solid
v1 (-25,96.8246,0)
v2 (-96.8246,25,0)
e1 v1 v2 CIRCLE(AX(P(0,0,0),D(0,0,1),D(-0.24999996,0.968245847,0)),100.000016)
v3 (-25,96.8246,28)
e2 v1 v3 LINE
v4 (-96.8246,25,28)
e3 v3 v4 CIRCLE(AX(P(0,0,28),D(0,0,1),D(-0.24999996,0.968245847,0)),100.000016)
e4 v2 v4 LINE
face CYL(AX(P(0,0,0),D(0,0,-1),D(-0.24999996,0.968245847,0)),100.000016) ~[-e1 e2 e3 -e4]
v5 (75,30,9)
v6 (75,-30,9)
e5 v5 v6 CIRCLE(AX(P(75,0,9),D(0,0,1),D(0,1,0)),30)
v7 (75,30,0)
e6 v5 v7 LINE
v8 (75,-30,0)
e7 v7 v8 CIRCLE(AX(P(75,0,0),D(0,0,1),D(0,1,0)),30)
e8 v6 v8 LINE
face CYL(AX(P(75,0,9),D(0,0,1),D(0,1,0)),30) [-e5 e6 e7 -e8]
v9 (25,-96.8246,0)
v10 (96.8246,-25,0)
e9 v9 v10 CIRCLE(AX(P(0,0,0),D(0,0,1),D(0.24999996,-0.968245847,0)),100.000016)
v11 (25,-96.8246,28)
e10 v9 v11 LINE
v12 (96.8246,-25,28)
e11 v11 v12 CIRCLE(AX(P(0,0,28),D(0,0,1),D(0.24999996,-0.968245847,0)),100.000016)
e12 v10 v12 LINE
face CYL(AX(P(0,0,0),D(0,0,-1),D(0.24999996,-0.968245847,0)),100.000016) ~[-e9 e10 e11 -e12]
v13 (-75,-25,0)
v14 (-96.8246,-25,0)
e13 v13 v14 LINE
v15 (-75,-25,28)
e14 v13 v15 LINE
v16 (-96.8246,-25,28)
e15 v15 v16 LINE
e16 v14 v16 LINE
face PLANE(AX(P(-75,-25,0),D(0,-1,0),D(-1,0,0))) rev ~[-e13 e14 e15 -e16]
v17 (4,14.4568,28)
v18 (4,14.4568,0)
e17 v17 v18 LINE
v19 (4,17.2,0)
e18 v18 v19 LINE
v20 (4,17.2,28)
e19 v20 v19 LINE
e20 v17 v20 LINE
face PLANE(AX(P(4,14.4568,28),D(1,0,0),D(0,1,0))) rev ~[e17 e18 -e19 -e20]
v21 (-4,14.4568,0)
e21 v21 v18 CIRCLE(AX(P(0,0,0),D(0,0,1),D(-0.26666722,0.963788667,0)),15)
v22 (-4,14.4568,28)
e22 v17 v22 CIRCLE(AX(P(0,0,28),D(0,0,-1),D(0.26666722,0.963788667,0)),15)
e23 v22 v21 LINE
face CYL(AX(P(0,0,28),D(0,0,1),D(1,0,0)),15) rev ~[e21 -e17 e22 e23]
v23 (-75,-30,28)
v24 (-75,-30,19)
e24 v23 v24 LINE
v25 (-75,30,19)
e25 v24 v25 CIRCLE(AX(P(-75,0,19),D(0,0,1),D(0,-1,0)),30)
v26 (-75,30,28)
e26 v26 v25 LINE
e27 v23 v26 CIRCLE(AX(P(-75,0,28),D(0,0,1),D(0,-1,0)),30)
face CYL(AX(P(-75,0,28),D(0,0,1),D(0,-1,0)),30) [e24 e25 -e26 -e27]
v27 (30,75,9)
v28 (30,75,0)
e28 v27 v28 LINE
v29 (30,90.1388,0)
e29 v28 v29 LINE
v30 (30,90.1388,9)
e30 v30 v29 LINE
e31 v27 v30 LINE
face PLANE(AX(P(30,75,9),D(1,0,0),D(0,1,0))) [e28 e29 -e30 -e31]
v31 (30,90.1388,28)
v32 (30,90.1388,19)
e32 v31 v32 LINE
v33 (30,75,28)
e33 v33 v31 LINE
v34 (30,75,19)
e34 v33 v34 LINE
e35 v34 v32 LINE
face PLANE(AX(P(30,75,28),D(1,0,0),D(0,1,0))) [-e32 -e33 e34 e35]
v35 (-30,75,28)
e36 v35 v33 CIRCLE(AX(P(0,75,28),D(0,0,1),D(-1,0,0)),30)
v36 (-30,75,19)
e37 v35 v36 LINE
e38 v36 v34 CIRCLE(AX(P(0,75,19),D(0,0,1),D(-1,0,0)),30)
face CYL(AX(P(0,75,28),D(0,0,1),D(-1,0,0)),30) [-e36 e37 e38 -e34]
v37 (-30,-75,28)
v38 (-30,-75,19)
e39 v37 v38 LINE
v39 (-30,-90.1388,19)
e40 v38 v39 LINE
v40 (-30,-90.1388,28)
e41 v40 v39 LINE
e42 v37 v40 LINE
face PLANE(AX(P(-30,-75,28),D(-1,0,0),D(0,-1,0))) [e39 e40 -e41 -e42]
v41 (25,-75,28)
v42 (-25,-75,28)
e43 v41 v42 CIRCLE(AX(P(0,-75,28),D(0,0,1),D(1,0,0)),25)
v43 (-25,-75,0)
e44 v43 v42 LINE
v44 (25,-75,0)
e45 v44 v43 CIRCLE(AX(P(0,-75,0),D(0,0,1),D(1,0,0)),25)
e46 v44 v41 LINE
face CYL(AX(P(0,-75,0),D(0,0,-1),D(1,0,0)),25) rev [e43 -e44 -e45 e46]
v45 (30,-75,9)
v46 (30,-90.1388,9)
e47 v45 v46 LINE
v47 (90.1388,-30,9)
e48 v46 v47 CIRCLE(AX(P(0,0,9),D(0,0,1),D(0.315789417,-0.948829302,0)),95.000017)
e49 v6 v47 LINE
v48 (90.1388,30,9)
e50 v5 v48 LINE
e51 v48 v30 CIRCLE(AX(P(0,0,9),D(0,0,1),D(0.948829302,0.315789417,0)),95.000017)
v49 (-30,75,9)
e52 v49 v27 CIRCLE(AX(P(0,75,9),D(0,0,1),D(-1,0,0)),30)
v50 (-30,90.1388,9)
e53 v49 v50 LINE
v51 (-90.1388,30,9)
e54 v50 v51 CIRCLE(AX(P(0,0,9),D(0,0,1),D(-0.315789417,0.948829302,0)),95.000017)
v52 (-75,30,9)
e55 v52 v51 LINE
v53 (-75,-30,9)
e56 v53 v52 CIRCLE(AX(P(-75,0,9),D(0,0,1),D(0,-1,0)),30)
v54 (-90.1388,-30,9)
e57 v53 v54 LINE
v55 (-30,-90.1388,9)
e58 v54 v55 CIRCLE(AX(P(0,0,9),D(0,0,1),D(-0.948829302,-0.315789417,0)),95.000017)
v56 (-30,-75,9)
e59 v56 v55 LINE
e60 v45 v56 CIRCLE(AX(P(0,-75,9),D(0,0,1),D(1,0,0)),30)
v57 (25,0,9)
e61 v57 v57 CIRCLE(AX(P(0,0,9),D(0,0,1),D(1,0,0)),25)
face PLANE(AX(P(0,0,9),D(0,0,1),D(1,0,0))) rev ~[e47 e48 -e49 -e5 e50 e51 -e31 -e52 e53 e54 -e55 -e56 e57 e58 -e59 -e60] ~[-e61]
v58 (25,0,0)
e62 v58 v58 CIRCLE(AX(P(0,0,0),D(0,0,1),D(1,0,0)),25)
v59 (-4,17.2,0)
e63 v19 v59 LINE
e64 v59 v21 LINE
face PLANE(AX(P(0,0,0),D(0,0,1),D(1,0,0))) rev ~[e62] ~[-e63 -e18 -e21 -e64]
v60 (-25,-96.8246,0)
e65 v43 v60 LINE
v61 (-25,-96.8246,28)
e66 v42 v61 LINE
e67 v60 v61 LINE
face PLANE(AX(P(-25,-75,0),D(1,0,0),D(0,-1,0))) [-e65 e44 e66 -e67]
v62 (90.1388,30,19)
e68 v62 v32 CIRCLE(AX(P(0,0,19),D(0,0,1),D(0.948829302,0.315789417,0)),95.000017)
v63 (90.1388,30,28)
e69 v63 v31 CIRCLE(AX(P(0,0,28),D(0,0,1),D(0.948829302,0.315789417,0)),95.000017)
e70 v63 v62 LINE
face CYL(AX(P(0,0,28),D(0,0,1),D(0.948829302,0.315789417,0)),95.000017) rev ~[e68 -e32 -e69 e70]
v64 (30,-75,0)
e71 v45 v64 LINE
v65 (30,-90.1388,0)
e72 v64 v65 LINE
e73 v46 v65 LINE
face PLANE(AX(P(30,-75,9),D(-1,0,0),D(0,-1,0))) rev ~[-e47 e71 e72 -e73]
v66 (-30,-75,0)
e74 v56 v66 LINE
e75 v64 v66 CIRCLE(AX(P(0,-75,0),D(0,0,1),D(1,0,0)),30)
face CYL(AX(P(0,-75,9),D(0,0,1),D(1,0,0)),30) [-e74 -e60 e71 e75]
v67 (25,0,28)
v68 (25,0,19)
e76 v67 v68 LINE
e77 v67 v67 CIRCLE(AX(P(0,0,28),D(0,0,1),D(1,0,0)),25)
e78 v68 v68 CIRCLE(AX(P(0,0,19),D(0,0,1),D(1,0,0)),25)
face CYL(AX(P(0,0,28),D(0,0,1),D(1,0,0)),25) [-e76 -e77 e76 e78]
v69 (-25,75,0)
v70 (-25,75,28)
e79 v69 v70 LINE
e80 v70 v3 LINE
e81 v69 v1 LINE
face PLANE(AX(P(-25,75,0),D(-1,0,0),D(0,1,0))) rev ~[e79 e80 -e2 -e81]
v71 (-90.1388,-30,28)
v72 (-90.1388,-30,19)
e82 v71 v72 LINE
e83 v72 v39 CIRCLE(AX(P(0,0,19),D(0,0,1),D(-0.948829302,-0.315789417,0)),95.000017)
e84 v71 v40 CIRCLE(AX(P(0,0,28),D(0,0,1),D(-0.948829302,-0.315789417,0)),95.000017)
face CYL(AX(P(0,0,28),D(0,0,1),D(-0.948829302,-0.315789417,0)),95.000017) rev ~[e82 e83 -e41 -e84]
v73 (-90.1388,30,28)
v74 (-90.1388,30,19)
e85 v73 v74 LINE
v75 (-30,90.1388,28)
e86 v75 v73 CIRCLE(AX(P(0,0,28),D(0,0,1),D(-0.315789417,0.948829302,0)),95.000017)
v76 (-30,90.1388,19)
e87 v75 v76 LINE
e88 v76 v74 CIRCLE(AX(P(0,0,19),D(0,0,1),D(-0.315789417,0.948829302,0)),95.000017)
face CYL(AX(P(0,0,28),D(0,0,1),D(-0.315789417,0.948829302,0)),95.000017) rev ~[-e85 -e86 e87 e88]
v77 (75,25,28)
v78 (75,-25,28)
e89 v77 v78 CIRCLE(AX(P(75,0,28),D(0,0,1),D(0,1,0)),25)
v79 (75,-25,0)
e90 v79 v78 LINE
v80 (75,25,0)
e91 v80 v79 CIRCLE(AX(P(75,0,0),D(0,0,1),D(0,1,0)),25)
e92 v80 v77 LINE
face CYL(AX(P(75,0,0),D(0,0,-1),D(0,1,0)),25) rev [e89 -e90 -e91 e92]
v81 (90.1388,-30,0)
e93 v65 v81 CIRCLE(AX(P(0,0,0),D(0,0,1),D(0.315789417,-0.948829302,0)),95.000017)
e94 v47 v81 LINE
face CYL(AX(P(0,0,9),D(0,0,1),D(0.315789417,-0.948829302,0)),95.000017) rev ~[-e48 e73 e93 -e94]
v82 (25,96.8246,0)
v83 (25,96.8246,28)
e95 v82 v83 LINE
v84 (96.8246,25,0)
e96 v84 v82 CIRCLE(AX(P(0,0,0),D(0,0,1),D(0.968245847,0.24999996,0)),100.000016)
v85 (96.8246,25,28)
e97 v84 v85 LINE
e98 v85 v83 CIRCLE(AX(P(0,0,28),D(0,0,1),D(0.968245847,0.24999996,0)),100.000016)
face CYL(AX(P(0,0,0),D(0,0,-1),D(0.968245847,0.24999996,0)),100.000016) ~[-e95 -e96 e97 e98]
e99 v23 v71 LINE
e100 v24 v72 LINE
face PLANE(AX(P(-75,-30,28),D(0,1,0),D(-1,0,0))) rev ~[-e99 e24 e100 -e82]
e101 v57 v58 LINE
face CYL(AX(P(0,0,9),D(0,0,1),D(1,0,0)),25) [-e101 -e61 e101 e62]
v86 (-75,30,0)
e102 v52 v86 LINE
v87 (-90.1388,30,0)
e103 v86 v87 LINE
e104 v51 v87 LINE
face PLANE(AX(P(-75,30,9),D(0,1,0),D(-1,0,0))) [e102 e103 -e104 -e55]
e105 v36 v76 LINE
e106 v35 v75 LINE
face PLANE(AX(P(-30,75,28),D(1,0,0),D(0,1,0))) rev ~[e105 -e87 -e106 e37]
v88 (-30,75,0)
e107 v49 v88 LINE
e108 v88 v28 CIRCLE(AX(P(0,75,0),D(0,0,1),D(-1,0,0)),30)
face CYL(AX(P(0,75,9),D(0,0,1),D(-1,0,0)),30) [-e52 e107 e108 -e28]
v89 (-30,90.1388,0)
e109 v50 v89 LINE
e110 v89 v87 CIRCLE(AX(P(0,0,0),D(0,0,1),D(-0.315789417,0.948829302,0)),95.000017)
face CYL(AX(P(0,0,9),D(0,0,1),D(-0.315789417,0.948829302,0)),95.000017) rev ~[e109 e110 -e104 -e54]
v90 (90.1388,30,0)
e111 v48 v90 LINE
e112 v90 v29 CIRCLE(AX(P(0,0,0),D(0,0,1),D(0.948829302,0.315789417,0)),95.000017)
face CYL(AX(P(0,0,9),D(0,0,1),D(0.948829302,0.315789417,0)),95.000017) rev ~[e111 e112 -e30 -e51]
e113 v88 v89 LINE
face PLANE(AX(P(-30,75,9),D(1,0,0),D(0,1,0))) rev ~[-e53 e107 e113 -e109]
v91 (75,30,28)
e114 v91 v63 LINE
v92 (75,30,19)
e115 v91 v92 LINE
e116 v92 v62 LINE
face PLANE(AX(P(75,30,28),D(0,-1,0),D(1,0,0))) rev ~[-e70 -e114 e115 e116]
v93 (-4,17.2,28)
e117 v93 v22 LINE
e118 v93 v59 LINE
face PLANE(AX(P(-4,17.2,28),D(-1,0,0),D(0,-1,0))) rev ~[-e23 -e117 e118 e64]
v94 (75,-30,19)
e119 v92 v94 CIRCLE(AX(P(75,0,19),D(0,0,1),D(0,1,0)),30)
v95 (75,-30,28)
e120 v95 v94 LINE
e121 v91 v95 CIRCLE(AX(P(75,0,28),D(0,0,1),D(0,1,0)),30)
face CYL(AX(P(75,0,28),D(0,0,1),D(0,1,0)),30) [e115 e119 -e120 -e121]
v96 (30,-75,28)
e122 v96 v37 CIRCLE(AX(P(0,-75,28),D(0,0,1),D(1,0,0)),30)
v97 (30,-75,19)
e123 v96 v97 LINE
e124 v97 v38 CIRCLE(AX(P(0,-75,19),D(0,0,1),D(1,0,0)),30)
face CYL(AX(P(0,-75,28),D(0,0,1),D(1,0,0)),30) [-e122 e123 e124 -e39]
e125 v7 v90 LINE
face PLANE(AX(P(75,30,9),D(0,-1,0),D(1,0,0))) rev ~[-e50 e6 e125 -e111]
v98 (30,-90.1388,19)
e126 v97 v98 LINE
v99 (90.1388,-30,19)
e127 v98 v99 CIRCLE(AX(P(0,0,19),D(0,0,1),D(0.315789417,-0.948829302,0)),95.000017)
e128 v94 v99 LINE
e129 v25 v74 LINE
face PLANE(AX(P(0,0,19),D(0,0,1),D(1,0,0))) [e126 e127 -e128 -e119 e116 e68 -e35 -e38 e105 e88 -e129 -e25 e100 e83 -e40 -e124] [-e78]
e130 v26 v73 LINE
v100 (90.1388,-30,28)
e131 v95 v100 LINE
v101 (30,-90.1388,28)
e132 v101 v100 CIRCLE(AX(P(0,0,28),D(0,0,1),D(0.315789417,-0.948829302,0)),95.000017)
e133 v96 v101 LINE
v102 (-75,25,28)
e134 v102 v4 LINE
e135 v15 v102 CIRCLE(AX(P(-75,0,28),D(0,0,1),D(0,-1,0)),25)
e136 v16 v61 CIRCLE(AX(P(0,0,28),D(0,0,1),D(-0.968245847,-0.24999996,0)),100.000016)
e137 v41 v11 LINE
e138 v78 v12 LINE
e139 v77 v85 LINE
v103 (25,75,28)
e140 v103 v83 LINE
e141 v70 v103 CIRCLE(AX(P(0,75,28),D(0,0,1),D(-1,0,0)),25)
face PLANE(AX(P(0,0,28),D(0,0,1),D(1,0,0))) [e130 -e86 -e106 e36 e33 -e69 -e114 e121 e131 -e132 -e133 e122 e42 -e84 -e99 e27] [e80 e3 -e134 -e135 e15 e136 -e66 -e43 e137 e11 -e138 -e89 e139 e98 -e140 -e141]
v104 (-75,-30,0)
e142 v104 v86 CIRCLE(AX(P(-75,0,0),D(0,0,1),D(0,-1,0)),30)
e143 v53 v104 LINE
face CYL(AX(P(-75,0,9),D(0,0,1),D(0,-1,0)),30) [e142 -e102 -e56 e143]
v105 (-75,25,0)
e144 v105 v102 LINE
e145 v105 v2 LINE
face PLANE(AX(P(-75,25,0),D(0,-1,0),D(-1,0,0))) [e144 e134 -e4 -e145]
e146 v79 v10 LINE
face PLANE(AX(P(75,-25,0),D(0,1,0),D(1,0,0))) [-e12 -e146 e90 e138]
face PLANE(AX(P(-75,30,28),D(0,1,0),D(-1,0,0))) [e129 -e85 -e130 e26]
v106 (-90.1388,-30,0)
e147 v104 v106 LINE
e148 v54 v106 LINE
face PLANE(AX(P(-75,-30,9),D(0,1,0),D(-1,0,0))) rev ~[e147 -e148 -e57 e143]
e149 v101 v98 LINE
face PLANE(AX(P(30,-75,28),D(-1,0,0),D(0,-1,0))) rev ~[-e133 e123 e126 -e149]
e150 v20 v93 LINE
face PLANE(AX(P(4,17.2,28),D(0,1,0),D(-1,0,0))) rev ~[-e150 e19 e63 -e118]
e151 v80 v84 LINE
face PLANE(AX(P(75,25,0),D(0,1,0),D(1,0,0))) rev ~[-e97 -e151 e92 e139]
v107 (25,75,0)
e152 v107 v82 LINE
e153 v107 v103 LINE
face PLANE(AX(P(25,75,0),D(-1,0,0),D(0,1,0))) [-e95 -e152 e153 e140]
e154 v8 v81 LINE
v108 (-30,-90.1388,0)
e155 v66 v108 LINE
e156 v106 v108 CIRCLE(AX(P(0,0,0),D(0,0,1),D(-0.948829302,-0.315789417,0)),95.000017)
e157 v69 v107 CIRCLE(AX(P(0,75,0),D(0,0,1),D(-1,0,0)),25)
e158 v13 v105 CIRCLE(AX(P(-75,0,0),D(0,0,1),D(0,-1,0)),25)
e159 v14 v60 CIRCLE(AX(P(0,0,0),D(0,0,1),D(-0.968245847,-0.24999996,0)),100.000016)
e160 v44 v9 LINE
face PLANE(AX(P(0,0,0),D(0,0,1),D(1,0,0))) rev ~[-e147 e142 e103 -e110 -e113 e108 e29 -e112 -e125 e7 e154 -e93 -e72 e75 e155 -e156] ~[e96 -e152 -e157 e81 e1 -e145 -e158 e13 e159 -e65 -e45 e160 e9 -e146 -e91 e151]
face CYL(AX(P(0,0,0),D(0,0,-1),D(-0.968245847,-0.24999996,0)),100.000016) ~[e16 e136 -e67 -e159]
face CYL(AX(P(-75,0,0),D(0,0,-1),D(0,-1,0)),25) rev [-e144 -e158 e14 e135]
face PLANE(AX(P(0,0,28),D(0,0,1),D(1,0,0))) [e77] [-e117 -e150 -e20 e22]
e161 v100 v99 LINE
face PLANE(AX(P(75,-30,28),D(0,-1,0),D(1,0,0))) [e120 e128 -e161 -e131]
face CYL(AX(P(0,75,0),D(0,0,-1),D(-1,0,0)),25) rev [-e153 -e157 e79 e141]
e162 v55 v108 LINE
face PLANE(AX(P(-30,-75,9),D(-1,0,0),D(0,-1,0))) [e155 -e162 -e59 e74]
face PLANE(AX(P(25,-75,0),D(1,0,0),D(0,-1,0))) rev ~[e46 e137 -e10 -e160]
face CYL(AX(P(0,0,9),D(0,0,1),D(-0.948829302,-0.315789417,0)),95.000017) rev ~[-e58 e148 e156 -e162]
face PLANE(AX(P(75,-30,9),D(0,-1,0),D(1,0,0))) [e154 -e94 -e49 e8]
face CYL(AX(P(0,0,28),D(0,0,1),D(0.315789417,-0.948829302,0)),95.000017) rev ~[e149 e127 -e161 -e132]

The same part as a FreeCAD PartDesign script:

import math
import FreeCAD as App
import Part
import Sketcher
Q = App.Units.Quantity

doc = App.newDocument("Part")
body = doc.addObject("PartDesign::Body", "Body")

sketch1 = doc.addObject("Sketcher::SketchObject", "Sketch")
body.addObject(sketch1)
sketch1.AttachmentSupport = (doc.XY_Plane, [""])
sketch1.MapMode = "FlatFace"
sketch1.addGeometry([
    Part.ArcOfCircle(Part.Circle(App.Vector(0, -75, 0), App.Vector(0, 0, 1), 25), math.radians(0), math.radians(180)),
    Part.LineSegment(App.Vector(25, -75, 0), App.Vector(25, -96.8246, 0)),
    Part.ArcOfCircle(Part.Circle(App.Vector(0, 0, 0), App.Vector(0, 0, 1), 100.000016), math.radians(-75.52249), math.radians(-14.47751)),
    Part.LineSegment(App.Vector(96.8246, -25, 0), App.Vector(75, -25, 0)),
    Part.ArcOfCircle(Part.Circle(App.Vector(75, 0, 0), App.Vector(0, 0, 1), 25), math.radians(90), math.radians(270)),
    Part.LineSegment(App.Vector(75, 25, 0), App.Vector(96.8246, 25, 0)),
    Part.ArcOfCircle(Part.Circle(App.Vector(0, 0, 0), App.Vector(0, 0, 1), 100.000016), math.radians(14.47751), math.radians(75.52249)),
    Part.LineSegment(App.Vector(25, 96.8246, 0), App.Vector(25, 75, 0)),
    Part.ArcOfCircle(Part.Circle(App.Vector(0, 75, 0), App.Vector(0, 0, 1), 25), math.radians(180), math.radians(360)),
    Part.LineSegment(App.Vector(-25, 75, 0), App.Vector(-25, 96.8246, 0)),
    Part.ArcOfCircle(Part.Circle(App.Vector(0, 0, 0), App.Vector(0, 0, 1), 100.000016), math.radians(104.47751), math.radians(165.52249)),
    Part.LineSegment(App.Vector(-96.8246, 25, 0), App.Vector(-75, 25, 0)),
    Part.ArcOfCircle(Part.Circle(App.Vector(-75, 0, 0), App.Vector(0, 0, 1), 25), math.radians(-90), math.radians(90)),
    Part.LineSegment(App.Vector(-75, -25, 0), App.Vector(-96.8246, -25, 0)),
    Part.ArcOfCircle(Part.Circle(App.Vector(0, 0, 0), App.Vector(0, 0, 1), 100.000016), math.radians(-165.52249), math.radians(-104.47751)),
    Part.LineSegment(App.Vector(-25, -96.8246, 0), App.Vector(-25, -75, 0)),
], False)
sketch1.addConstraint([
    Sketcher.Constraint("Tangent", 0, 1, 1, 1),
    Sketcher.Constraint("Coincident", 1, 2, 2, 1),
    Sketcher.Constraint("Coincident", 2, 2, 3, 1),
    Sketcher.Constraint("Tangent", 3, 2, 4, 2),
    Sketcher.Constraint("Tangent", 4, 1, 5, 1),
    Sketcher.Constraint("Coincident", 5, 2, 6, 1),
    Sketcher.Constraint("Coincident", 6, 2, 7, 1),
    Sketcher.Constraint("Tangent", 7, 2, 8, 2),
    Sketcher.Constraint("Tangent", 8, 1, 9, 1),
    Sketcher.Constraint("Coincident", 9, 2, 10, 1),
    Sketcher.Constraint("Coincident", 10, 2, 11, 1),
    Sketcher.Constraint("Tangent", 11, 2, 12, 2),
    Sketcher.Constraint("Tangent", 12, 1, 13, 1),
    Sketcher.Constraint("Coincident", 13, 2, 14, 1),
    Sketcher.Constraint("Coincident", 14, 2, 15, 1),
    Sketcher.Constraint("Tangent", 15, 2, 0, 2),
    Sketcher.Constraint("Vertical", 1),
    Sketcher.Constraint("Horizontal", 3),
    Sketcher.Constraint("Horizontal", 5),
    Sketcher.Constraint("Vertical", 7),
    Sketcher.Constraint("Vertical", 9),
    Sketcher.Constraint("Horizontal", 11),
    Sketcher.Constraint("Horizontal", 13),
    Sketcher.Constraint("Vertical", 15),
    Sketcher.Constraint("Coincident", 2, 3, -1, 1),
    Sketcher.Constraint("Coincident", 6, 3, -1, 1),
    Sketcher.Constraint("Coincident", 10, 3, -1, 1),
    Sketcher.Constraint("Coincident", 14, 3, -1, 1),
    Sketcher.Constraint("Equal", 0, 4),
    Sketcher.Constraint("Equal", 2, 6),
    Sketcher.Constraint("Equal", 4, 8),
    Sketcher.Constraint("Equal", 6, 10),
    Sketcher.Constraint("Equal", 8, 12),
    Sketcher.Constraint("Equal", 10, 14),
    Sketcher.Constraint("Symmetric", 0, 3, 8, 3, -1, 1),
    Sketcher.Constraint("Symmetric", 4, 3, 12, 3, -1, 1),
    Sketcher.Constraint("PointOnObject", 0, 3, -2),
    Sketcher.Constraint("PointOnObject", 4, 3, -1),
    Sketcher.Constraint("Equal", 13, 1),
    Sketcher.Constraint("Radius", 0, Q("25 mm")),
    Sketcher.Constraint("Radius", 2, Q("100 mm")),
    Sketcher.Constraint("DistanceY", 0, 1, 2, 2, Q("50 mm")),
])
pad1 = doc.addObject("PartDesign::Pad", "Pad")
body.addObject(pad1)
pad1.Profile = sketch1
pad1.Length = 28

sketch2 = doc.addObject("Sketcher::SketchObject", "Sketch001")
body.addObject(sketch2)
sketch2.AttachmentSupport = (doc.XY_Plane, [""])
sketch2.MapMode = "FlatFace"
sketch2.AttachmentOffset = App.Placement(App.Vector(0, 0, 28), App.Rotation())
sketch2.addGeometry([
    Part.ArcOfCircle(Part.Circle(App.Vector(0, -75, 0), App.Vector(0, 0, 1), 30), math.radians(0), math.radians(180)),
    Part.LineSegment(App.Vector(30, -75, 0), App.Vector(30, -90.1388, 0)),
    Part.ArcOfCircle(Part.Circle(App.Vector(0, 0, 0), App.Vector(0, 0, 1), 95.000017), math.radians(-71.591523), math.radians(-18.408477)),
    Part.LineSegment(App.Vector(90.1388, -30, 0), App.Vector(75, -30, 0)),
    Part.ArcOfCircle(Part.Circle(App.Vector(75, 0, 0), App.Vector(0, 0, 1), 30), math.radians(90), math.radians(270)),
    Part.LineSegment(App.Vector(75, 30, 0), App.Vector(90.1388, 30, 0)),
    Part.ArcOfCircle(Part.Circle(App.Vector(0, 0, 0), App.Vector(0, 0, 1), 95.000017), math.radians(18.408477), math.radians(71.591523)),
    Part.LineSegment(App.Vector(30, 90.1388, 0), App.Vector(30, 75, 0)),
    Part.ArcOfCircle(Part.Circle(App.Vector(0, 75, 0), App.Vector(0, 0, 1), 30), math.radians(180), math.radians(360)),
    Part.LineSegment(App.Vector(-30, 75, 0), App.Vector(-30, 90.1388, 0)),
    Part.ArcOfCircle(Part.Circle(App.Vector(0, 0, 0), App.Vector(0, 0, 1), 95.000017), math.radians(108.408477), math.radians(161.591523)),
    Part.LineSegment(App.Vector(-90.1388, 30, 0), App.Vector(-75, 30, 0)),
    Part.ArcOfCircle(Part.Circle(App.Vector(-75, 0, 0), App.Vector(0, 0, 1), 30), math.radians(-90), math.radians(90)),
    Part.LineSegment(App.Vector(-75, -30, 0), App.Vector(-90.1388, -30, 0)),
    Part.ArcOfCircle(Part.Circle(App.Vector(0, 0, 0), App.Vector(0, 0, 1), 95.000017), math.radians(-161.591523), math.radians(-108.408477)),
    Part.LineSegment(App.Vector(-30, -90.1388, 0), App.Vector(-30, -75, 0)),
    Part.Circle(App.Vector(0, 0, 0), App.Vector(0, 0, 1), 25),
], False)
sketch2.addConstraint([
    Sketcher.Constraint("Tangent", 0, 1, 1, 1),
    Sketcher.Constraint("Coincident", 1, 2, 2, 1),
    Sketcher.Constraint("Coincident", 2, 2, 3, 1),
    Sketcher.Constraint("Tangent", 3, 2, 4, 2),
    Sketcher.Constraint("Tangent", 4, 1, 5, 1),
    Sketcher.Constraint("Coincident", 5, 2, 6, 1),
    Sketcher.Constraint("Coincident", 6, 2, 7, 1),
    Sketcher.Constraint("Tangent", 7, 2, 8, 2),
    Sketcher.Constraint("Tangent", 8, 1, 9, 1),
    Sketcher.Constraint("Coincident", 9, 2, 10, 1),
    Sketcher.Constraint("Coincident", 10, 2, 11, 1),
    Sketcher.Constraint("Tangent", 11, 2, 12, 2),
    Sketcher.Constraint("Tangent", 12, 1, 13, 1),
    Sketcher.Constraint("Coincident", 13, 2, 14, 1),
    Sketcher.Constraint("Coincident", 14, 2, 15, 1),
    Sketcher.Constraint("Tangent", 15, 2, 0, 2),
    Sketcher.Constraint("Vertical", 1),
    Sketcher.Constraint("Horizontal", 3),
    Sketcher.Constraint("Horizontal", 5),
    Sketcher.Constraint("Vertical", 7),
    Sketcher.Constraint("Vertical", 9),
    Sketcher.Constraint("Horizontal", 11),
    Sketcher.Constraint("Horizontal", 13),
    Sketcher.Constraint("Vertical", 15),
    Sketcher.Constraint("Coincident", 2, 3, -1, 1),
    Sketcher.Constraint("Coincident", 6, 3, -1, 1),
    Sketcher.Constraint("Coincident", 10, 3, -1, 1),
    Sketcher.Constraint("Coincident", 14, 3, -1, 1),
    Sketcher.Constraint("Coincident", 16, 3, -1, 1),
    Sketcher.Constraint("Equal", 0, 4),
    Sketcher.Constraint("Equal", 2, 6),
    Sketcher.Constraint("Equal", 4, 8),
    Sketcher.Constraint("Equal", 6, 10),
    Sketcher.Constraint("Equal", 8, 12),
    Sketcher.Constraint("Equal", 10, 14),
    Sketcher.Constraint("Symmetric", 0, 3, 8, 3, -1, 1),
    Sketcher.Constraint("Symmetric", 4, 3, 12, 3, -1, 1),
    Sketcher.Constraint("PointOnObject", 0, 3, -2),
    Sketcher.Constraint("PointOnObject", 4, 3, -1),
    Sketcher.Constraint("Equal", 13, 1),
    Sketcher.Constraint("Diameter", 16, Q("50 mm")),
    Sketcher.Constraint("Radius", 2, Q("95 mm")),
    Sketcher.Constraint("Radius", 0, Q("30 mm")),
    Sketcher.Constraint("DistanceY", 0, 3, -1, 1, Q("75 mm")),
])
pocket1 = doc.addObject("PartDesign::Pocket", "Pocket")
body.addObject(pocket1)
pocket1.Profile = sketch2
pocket1.Length = 9
doc.recompute()

linearpattern = doc.addObject("PartDesign::LinearPattern", "LinearPattern")
body.addObject(linearpattern)
linearpattern.Originals = [pocket1]
linearpattern.Direction = (doc.Z_Axis, [""])
linearpattern.Mode = "offset"
linearpattern.Offset = 19
linearpattern.Occurrences = 2
linearpattern.Reversed = True
body.Tip = linearpattern

sketch3 = doc.addObject("Sketcher::SketchObject", "Sketch002")
body.addObject(sketch3)
sketch3.AttachmentSupport = (doc.XY_Plane, [""])
sketch3.MapMode = "FlatFace"
sketch3.AttachmentOffset = App.Placement(App.Vector(0, 0, 28), App.Rotation())
sketch3.addGeometry([
    Part.ArcOfCircle(Part.Circle(App.Vector(0, 0, 0), App.Vector(0, 0, 1), 15), math.radians(105.466043), math.radians(434.533957)),
    Part.LineSegment(App.Vector(4, 14.4568, 0), App.Vector(4, 17.2, 0)),
    Part.LineSegment(App.Vector(4, 17.2, 0), App.Vector(-4, 17.2, 0)),
    Part.LineSegment(App.Vector(-4, 17.2, 0), App.Vector(-4, 14.4568, 0)),
], False)
sketch3.addConstraint([
    Sketcher.Constraint("Coincident", 0, 2, 1, 1),
    Sketcher.Constraint("Coincident", 1, 2, 2, 1),
    Sketcher.Constraint("Coincident", 2, 2, 3, 1),
    Sketcher.Constraint("Coincident", 3, 2, 0, 1),
    Sketcher.Constraint("Vertical", 1),
    Sketcher.Constraint("Horizontal", 2),
    Sketcher.Constraint("Vertical", 3),
    Sketcher.Constraint("Coincident", 0, 3, -1, 1),
    Sketcher.Constraint("Horizontal", 0, 2, 3, 2),
    Sketcher.Constraint("Radius", 0, Q("15 mm")),
    Sketcher.Constraint("DistanceX", 2, 2, 2, 1, Q("8 mm")),
    Sketcher.Constraint("DistanceY", -1, 1, 1, 2, Q("17.2 mm")),
])
pocket2 = doc.addObject("PartDesign::Pocket", "Pocket001")
body.addObject(pocket2)
pocket2.Profile = sketch3
pocket2.Length = 28

doc.recompute()
